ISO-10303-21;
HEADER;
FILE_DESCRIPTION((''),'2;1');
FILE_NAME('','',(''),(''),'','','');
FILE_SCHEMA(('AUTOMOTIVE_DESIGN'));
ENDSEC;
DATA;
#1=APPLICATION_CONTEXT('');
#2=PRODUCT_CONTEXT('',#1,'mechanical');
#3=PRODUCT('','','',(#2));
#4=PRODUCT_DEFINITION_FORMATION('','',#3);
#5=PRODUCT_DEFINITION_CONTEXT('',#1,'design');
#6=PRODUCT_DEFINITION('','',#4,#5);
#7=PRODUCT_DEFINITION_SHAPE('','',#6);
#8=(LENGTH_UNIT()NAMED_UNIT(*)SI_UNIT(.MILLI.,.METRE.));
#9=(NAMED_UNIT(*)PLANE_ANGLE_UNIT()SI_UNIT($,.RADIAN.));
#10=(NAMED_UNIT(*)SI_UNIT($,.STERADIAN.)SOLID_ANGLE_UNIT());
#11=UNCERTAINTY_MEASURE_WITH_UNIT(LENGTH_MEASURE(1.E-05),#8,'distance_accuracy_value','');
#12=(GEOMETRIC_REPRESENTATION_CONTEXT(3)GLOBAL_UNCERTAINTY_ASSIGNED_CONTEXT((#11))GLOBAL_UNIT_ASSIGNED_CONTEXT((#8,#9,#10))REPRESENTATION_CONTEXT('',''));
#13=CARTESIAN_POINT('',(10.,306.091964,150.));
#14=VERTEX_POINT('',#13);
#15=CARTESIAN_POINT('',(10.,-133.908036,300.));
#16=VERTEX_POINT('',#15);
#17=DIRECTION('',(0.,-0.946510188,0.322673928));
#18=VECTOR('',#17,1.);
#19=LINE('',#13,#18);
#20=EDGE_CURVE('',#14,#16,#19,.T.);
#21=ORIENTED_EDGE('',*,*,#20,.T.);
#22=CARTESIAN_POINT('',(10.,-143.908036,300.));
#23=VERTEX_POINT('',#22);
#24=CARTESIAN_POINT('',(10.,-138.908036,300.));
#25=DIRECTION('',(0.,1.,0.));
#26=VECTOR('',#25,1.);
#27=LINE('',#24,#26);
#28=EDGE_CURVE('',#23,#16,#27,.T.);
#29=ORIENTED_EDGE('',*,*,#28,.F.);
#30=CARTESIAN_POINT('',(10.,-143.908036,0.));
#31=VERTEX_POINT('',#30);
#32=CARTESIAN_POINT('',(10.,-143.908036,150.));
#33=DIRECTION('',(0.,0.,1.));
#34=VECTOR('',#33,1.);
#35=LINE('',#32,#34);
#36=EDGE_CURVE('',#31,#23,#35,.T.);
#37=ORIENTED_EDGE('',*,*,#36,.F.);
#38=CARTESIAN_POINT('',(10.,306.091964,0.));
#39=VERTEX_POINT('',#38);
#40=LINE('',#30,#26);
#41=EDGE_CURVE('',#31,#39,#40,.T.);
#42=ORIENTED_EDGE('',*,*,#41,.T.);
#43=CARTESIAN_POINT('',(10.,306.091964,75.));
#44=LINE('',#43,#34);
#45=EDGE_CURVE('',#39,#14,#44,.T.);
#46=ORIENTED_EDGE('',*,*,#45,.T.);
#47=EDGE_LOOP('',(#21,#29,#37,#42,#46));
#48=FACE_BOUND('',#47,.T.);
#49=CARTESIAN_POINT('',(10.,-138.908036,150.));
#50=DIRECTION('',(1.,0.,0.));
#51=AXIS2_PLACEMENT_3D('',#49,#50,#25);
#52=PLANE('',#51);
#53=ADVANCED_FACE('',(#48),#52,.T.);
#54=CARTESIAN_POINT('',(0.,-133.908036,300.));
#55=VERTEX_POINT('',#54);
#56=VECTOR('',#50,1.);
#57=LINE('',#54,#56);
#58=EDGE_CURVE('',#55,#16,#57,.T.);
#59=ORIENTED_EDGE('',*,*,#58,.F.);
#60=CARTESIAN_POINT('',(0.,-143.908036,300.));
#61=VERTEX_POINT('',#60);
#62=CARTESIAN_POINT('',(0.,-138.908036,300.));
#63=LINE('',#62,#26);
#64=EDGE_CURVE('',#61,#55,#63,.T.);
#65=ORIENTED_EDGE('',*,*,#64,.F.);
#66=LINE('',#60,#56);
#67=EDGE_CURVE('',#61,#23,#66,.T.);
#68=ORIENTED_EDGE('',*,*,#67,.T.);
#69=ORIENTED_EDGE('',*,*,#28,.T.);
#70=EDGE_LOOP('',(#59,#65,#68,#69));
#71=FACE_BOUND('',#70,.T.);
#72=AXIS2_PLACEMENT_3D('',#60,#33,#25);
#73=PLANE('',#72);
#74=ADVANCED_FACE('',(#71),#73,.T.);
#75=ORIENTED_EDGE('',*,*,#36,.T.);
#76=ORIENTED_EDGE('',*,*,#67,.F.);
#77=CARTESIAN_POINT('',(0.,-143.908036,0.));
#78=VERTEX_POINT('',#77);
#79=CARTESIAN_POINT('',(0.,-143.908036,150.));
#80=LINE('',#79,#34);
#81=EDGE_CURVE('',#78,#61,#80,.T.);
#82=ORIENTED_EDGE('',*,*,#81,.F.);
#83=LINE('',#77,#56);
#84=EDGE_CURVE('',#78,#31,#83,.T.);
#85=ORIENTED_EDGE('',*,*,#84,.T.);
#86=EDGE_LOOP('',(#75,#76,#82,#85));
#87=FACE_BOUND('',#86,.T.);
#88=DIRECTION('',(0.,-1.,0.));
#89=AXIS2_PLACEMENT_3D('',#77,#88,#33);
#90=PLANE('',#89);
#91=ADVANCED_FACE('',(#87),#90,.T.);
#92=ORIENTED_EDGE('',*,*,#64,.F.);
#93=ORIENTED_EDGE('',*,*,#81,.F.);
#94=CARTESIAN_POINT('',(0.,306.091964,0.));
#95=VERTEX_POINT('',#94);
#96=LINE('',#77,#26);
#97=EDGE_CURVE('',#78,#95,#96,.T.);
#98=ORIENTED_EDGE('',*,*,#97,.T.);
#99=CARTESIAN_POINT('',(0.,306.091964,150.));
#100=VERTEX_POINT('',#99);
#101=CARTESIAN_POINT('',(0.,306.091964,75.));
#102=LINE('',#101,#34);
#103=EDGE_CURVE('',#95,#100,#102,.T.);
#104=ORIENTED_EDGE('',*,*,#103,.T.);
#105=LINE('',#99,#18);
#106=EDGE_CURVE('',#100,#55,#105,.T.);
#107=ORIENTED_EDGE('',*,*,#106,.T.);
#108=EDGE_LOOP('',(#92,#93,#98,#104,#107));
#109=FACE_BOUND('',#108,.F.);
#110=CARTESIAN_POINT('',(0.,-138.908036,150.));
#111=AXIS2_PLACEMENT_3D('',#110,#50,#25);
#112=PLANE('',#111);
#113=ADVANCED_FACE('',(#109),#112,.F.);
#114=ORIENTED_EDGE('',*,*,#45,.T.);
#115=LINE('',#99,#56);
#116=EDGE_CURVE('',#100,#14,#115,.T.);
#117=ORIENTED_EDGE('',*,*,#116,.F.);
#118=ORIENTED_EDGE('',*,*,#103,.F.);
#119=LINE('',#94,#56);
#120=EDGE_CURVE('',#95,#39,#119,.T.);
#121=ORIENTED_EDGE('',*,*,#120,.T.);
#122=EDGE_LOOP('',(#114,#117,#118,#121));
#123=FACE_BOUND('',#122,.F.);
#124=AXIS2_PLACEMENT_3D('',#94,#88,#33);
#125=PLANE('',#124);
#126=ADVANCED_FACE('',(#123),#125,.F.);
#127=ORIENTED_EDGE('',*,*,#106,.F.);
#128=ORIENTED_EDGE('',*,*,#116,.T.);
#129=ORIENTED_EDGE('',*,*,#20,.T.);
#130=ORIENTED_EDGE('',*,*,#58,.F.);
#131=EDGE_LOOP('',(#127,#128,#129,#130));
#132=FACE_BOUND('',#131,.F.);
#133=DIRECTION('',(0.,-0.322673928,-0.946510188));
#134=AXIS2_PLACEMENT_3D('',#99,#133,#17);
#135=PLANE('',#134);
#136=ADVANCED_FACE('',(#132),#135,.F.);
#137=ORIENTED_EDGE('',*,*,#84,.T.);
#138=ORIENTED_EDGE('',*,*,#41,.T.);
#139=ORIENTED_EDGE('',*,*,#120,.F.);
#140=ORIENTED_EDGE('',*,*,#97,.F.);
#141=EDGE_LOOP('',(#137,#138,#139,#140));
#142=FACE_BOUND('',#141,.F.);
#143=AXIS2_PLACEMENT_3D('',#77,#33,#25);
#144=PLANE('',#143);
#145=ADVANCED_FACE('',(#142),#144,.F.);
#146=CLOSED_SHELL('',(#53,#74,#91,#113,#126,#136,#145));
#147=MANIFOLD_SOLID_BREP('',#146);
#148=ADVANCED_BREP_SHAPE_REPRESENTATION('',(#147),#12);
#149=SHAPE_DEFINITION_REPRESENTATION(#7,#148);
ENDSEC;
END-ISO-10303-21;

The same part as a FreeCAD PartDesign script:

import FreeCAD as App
import Part
import Sketcher


def add_polygon(sketch, points):
    """Adds a closed chain of lines whose ends are joined by coincident constraints."""
    first, n = sketch.GeometryCount, len(points)
    for a, b in zip(points, points[1:] + points[:1]):
        sketch.addGeometry(Part.LineSegment(App.Vector(*a, 0), App.Vector(*b, 0)), False)
    for i in range(n):
        sketch.addConstraint(Sketcher.Constraint("Coincident", first + i, 2, first + (i + 1) % n, 1))

doc = App.newDocument("Part")
body = doc.addObject("PartDesign::Body", "Body")

sketch1 = body.newObject("Sketcher::SketchObject", "Sketch")
sketch1.AttachmentSupport = (doc.getObject("YZ_Plane"), [""])
sketch1.MapMode = "FlatFace"
add_polygon(sketch1, [(-143.908036, 300), (-143.908036, 0), (306.091964, 0), (306.091964, 150), (-133.908036, 300)])
sketch1.addConstraint([
    Sketcher.Constraint("Vertical", 0),
    Sketcher.Constraint("Horizontal", 1),
    Sketcher.Constraint("Vertical", 2),
    Sketcher.Constraint("Horizontal", 4),
    Sketcher.Constraint("PointOnObject", 0, 2, -1),
    Sketcher.Constraint("DistanceX", 1, 1, 1, 2, 450.0),
    Sketcher.Constraint("DistanceX", 4, 2, 4, 1, 10.0),
    Sketcher.Constraint("DistanceY", 0, 2, 0, 1, 300.0),
    Sketcher.Constraint("DistanceY", 2, 1, 2, 2, 150.0),
    Sketcher.Constraint("DistanceX", 0, 2, -1, 1, 143.908036),
])
pad1 = body.newObject("PartDesign::Pad", "Pad")
pad1.Profile = sketch1
pad1.Length = 10

doc.recompute()
